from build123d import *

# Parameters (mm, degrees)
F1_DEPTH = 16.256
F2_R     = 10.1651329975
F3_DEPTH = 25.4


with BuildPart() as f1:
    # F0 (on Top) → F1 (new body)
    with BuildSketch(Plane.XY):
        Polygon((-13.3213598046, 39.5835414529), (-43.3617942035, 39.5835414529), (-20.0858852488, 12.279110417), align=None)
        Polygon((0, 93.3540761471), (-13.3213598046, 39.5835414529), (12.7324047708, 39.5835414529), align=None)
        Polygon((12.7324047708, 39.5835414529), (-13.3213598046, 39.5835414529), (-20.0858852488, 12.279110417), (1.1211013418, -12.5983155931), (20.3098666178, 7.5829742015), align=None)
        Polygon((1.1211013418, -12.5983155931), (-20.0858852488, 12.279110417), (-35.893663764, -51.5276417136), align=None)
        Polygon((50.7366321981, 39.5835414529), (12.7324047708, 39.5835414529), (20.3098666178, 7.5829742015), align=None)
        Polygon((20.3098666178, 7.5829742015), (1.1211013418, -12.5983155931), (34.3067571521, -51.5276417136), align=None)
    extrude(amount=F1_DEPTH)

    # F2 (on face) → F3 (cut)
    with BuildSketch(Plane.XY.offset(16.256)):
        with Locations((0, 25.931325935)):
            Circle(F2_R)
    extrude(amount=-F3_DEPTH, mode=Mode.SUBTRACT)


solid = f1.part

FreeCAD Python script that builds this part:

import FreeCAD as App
import Part
import Sketcher
Q = App.Units.Quantity

doc = App.newDocument("Part")
body = doc.addObject("PartDesign::Body", "Body")

sketch1 = doc.addObject("Sketcher::SketchObject", "Sketch")
body.addObject(sketch1)
sketch1.AttachmentSupport = (doc.XY_Plane, [""])
sketch1.MapMode = "FlatFace"
sketch1.addGeometry([
    Part.LineSegment(App.Vector(-13.32136, 39.583541, 0), App.Vector(-43.361794, 39.583541, 0)),
    Part.LineSegment(App.Vector(-43.361794, 39.583541, 0), App.Vector(-20.085885, 12.27911, 0)),
    Part.LineSegment(App.Vector(-20.085885, 12.27911, 0), App.Vector(-35.893664, -51.527642, 0)),
    Part.LineSegment(App.Vector(-35.893664, -51.527642, 0), App.Vector(1.121101, -12.598316, 0)),
    Part.LineSegment(App.Vector(1.121101, -12.598316, 0), App.Vector(34.306757, -51.527642, 0)),
    Part.LineSegment(App.Vector(34.306757, -51.527642, 0), App.Vector(20.309867, 7.582974, 0)),
    Part.LineSegment(App.Vector(20.309867, 7.582974, 0), App.Vector(50.736632, 39.583541, 0)),
    Part.LineSegment(App.Vector(50.736632, 39.583541, 0), App.Vector(12.732405, 39.583541, 0)),
    Part.LineSegment(App.Vector(12.732405, 39.583541, 0), App.Vector(0, 93.354076, 0)),
    Part.LineSegment(App.Vector(0, 93.354076, 0), App.Vector(-13.32136, 39.583541, 0)),
], False)
sketch1.addConstraint([
    Sketcher.Constraint("Coincident", 0, 2, 1, 1),
    Sketcher.Constraint("Coincident", 1, 2, 2, 1),
    Sketcher.Constraint("Coincident", 2, 2, 3, 1),
    Sketcher.Constraint("Coincident", 3, 2, 4, 1),
    Sketcher.Constraint("Coincident", 4, 2, 5, 1),
    Sketcher.Constraint("Coincident", 5, 2, 6, 1),
    Sketcher.Constraint("Coincident", 6, 2, 7, 1),
    Sketcher.Constraint("Coincident", 7, 2, 8, 1),
    Sketcher.Constraint("Coincident", 8, 2, 9, 1),
    Sketcher.Constraint("Coincident", 9, 2, 0, 1),
    Sketcher.Constraint("Horizontal", 0),
    Sketcher.Constraint("Horizontal", 7),
    Sketcher.Constraint("PointOnObject", 8, 2, -2),
    Sketcher.Constraint("Parallel", 1, 4),
    Sketcher.Constraint("Parallel", 3, 6),
    Sketcher.Constraint("Parallel", 5, 8),
    Sketcher.Constraint("Parallel", 2, 9),
    Sketcher.Constraint("Horizontal", 2, 2, 4, 2),
    Sketcher.Constraint("Horizontal", 0, 2, 6, 2),
    Sketcher.Constraint("DistanceX", -1, 1, 3, 2, Q("1.121101 mm")),
    Sketcher.Constraint("DistanceX", 0, 2, 7, 2, Q("56.094199 mm")),
    Sketcher.Constraint("DistanceY", 5, 2, 8, 2, Q("85.771102 mm")),
    Sketcher.Constraint("Distance", 1, Q("35.878962 mm")),
    Sketcher.Constraint("Distance", 2, Q("65.73574 mm")),
    Sketcher.Constraint("Distance", 8, Q("55.257439 mm")),
    Sketcher.Constraint("Distance", 9, Q("55.39611 mm")),
    Sketcher.Constraint("DistanceX", 0, 2, 0, 1, Q("30.040434 mm")),
    Sketcher.Constraint("DistanceX", 7, 2, 7, 1, Q("38.004227 mm")),
    Sketcher.Constraint("DistanceY", -1, 1, 0, 2, Q("39.583541 mm")),
    Sketcher.Constraint("DistanceY", -1, 1, 1, 2, Q("12.27911 mm")),
])
pad1 = doc.addObject("PartDesign::Pad", "Pad")
body.addObject(pad1)
pad1.Profile = sketch1
pad1.Length = Q("0.64 in")

sketch2 = doc.addObject("Sketcher::SketchObject", "Sketch001")
body.addObject(sketch2)
sketch2.AttachmentSupport = (doc.XY_Plane, [""])
sketch2.MapMode = "FlatFace"
sketch2.AttachmentOffset = App.Placement(App.Vector(0, 0, 0.64 * 25.4), App.Rotation())
sketch2.addGeometry(Part.Circle(App.Vector(0, 26, 0), App.Vector(0, 0, 1), 10), False)
sketch2.addConstraint([
    Sketcher.Constraint("PointOnObject", 0, 3, -2),
    Sketcher.Constraint("Diameter", 0, Q("20.330266 mm")),
    Sketcher.Constraint("DistanceY", -1, 1, 0, 3, Q("25.931326 mm")),
])
pocket1 = doc.addObject("PartDesign::Pocket", "Pocket")
body.addObject(pocket1)
pocket1.Profile = sketch2
pocket1.Length = Q("1 in")

doc.recompute()
